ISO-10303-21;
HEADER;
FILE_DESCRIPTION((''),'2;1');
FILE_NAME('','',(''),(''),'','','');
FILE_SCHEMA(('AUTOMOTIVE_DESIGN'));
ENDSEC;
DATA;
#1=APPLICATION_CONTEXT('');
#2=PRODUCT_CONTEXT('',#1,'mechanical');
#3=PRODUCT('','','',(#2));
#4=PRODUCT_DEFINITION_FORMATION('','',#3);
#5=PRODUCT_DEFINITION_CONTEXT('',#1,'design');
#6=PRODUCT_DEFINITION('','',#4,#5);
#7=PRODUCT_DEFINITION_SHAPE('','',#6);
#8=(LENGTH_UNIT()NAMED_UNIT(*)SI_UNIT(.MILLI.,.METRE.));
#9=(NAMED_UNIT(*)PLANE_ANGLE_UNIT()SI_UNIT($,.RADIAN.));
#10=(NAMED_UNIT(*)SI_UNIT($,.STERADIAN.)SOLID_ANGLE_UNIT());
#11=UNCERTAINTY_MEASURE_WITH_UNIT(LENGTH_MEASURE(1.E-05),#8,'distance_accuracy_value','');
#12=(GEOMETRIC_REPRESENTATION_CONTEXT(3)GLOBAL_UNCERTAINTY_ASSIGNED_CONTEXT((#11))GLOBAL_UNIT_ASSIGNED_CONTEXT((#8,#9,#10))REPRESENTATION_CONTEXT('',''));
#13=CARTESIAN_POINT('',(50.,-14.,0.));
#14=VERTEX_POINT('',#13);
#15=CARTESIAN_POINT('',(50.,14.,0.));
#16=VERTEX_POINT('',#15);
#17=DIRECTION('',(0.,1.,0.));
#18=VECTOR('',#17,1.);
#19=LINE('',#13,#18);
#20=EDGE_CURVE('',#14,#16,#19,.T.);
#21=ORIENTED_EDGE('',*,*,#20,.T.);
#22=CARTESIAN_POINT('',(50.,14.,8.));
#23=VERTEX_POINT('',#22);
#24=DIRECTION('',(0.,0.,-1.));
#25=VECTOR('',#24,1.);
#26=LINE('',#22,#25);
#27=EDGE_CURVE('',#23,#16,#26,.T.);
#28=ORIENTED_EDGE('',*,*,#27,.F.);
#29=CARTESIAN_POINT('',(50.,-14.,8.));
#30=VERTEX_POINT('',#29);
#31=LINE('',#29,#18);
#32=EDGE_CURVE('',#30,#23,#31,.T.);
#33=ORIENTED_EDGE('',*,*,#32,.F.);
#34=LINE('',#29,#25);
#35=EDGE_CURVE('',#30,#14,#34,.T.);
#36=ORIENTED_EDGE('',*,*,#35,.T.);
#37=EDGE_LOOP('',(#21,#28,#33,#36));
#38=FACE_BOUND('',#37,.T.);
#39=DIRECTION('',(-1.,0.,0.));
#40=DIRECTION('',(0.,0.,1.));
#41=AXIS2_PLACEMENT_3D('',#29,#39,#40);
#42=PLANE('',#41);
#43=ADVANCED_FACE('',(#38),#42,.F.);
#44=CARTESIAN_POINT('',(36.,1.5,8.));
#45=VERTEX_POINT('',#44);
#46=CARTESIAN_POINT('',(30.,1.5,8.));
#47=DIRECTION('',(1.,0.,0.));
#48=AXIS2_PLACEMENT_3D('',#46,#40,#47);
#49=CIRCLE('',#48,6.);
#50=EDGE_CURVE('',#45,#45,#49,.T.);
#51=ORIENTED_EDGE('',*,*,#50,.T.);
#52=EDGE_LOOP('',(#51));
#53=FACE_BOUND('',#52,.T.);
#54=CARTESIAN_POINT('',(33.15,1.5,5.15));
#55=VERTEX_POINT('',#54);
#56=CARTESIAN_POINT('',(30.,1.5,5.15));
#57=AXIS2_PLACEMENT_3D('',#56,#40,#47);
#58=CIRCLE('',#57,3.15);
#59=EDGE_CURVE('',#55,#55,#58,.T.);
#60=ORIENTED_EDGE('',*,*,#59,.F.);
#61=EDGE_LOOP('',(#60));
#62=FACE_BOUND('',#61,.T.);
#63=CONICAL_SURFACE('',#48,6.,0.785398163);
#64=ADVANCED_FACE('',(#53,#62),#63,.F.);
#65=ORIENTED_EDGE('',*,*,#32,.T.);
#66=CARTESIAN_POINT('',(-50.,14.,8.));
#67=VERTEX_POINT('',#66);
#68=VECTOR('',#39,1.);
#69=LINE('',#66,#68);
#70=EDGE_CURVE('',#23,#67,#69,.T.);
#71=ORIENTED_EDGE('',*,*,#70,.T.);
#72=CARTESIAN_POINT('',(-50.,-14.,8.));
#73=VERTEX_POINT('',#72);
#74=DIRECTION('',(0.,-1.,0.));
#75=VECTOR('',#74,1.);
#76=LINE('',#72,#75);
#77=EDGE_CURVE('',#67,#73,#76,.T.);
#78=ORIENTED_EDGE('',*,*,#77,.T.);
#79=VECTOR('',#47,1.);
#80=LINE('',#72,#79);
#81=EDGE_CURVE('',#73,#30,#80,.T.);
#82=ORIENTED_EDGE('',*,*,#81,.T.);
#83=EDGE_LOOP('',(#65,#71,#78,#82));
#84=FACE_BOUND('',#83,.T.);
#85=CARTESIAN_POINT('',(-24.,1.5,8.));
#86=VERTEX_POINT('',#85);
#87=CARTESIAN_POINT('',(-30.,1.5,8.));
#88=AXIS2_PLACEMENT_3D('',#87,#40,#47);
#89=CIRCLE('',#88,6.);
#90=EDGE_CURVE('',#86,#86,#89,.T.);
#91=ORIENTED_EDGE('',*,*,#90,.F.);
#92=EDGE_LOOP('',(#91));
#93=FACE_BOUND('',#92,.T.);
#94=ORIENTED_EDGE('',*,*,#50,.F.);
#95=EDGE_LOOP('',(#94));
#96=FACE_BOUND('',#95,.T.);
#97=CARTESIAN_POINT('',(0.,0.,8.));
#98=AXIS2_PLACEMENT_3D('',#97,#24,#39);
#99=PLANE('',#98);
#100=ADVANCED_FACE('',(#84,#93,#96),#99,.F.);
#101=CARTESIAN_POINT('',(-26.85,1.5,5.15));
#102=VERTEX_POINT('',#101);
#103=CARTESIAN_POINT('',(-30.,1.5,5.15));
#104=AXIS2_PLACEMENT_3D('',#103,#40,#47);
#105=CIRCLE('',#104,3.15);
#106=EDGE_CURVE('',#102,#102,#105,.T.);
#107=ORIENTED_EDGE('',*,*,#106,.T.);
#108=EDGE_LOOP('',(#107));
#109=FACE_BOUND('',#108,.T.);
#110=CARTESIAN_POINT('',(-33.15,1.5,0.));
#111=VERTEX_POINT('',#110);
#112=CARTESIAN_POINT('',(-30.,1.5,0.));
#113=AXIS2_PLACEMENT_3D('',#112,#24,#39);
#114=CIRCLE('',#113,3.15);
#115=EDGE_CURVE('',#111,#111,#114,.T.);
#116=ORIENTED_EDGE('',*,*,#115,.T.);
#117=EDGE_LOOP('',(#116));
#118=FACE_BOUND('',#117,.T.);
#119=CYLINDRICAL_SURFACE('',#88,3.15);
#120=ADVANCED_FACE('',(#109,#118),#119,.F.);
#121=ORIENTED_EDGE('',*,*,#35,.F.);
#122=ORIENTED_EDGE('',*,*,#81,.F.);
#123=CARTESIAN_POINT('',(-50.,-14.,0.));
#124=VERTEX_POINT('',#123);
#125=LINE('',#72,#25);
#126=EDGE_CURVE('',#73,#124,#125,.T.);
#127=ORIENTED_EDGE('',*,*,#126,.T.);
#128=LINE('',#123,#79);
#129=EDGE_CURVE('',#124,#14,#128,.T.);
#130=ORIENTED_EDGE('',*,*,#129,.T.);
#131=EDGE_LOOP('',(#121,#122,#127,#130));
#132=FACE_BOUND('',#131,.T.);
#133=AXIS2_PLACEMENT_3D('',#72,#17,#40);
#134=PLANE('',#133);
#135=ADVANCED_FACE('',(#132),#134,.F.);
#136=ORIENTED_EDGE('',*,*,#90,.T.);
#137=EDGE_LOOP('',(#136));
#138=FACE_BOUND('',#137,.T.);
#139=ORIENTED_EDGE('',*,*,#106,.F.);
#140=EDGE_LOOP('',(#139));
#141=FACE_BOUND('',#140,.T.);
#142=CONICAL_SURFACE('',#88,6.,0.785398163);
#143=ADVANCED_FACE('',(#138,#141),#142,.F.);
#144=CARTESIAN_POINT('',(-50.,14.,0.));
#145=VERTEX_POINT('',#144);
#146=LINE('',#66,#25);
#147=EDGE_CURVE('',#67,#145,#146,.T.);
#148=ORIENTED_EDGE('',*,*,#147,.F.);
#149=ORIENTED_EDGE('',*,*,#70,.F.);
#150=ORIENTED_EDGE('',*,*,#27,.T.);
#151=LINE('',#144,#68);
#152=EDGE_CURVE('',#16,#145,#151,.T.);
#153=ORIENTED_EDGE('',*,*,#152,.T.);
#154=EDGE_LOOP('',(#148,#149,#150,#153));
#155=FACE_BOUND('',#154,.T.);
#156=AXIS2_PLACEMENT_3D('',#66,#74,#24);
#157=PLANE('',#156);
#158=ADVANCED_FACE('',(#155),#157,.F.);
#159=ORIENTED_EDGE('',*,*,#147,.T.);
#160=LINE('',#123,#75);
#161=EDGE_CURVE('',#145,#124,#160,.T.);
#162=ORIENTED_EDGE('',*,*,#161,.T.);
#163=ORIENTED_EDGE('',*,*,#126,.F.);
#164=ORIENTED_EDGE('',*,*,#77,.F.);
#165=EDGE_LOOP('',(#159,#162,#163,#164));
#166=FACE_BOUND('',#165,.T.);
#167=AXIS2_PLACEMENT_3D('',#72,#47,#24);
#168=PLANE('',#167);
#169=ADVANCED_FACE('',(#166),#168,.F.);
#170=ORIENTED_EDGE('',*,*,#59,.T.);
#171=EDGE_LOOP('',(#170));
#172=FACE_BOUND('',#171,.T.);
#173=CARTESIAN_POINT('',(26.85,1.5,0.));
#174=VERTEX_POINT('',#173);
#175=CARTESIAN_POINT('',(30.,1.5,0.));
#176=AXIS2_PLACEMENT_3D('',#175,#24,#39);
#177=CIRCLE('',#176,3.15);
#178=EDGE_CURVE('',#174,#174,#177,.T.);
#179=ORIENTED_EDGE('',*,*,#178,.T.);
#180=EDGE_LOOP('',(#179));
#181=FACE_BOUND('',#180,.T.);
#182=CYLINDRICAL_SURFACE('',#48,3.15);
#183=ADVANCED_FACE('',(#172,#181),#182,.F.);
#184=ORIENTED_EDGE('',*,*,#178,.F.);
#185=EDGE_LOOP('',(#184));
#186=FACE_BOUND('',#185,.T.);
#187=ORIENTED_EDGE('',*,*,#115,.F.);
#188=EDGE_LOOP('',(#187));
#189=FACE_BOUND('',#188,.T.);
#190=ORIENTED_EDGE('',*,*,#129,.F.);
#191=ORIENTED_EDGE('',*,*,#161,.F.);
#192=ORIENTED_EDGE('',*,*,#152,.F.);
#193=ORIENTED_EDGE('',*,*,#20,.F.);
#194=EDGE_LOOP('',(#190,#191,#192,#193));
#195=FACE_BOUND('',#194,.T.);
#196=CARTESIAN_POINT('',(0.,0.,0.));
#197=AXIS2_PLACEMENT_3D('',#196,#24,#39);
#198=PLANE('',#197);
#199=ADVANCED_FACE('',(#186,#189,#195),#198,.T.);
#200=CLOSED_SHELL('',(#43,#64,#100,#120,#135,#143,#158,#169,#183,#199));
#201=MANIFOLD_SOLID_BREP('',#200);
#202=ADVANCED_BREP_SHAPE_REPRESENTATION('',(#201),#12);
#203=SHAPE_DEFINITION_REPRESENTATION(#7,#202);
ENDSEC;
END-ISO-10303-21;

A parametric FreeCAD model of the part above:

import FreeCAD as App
import Part
import Sketcher
from FreeCAD import Vector


def add_polygon(sketch, points):
    """Adds a closed chain of lines whose ends are joined by coincident constraints."""
    first, n = sketch.GeometryCount, len(points)
    for a, b in zip(points, points[1:] + points[:1]):
        sketch.addGeometry(Part.LineSegment(App.Vector(*a, 0), App.Vector(*b, 0)), False)
    for i in range(n):
        sketch.addConstraint(Sketcher.Constraint("Coincident", first + i, 2, first + (i + 1) % n, 1))

doc = App.newDocument("Part")
body = doc.addObject("PartDesign::Body", "Body")

sketch1 = doc.addObject("Sketcher::SketchObject", "Sketch")
body.addObject(sketch1)
sketch1.AttachmentSupport = (doc.XY_Plane, [""])
sketch1.MapMode = "FlatFace"
add_polygon(sketch1, [(-50, 14), (-50, -14), (50, -14), (50, 14)])
sketch1.addConstraint(Sketcher.Constraint("Vertical", 0))
sketch1.addConstraint(Sketcher.Constraint("Horizontal", 1))
sketch1.addConstraint(Sketcher.Constraint("Vertical", 2))
sketch1.addConstraint(Sketcher.Constraint("Horizontal", 3))
sketch1.addConstraint(Sketcher.Constraint("Symmetric", 0, 2, 2, 2, -1, 1))
sketch1.addConstraint(Sketcher.Constraint("DistanceX", 1, 1, 1, 2, 100.0))
sketch1.addConstraint(Sketcher.Constraint("DistanceY", 0, 2, 0, 1, 28.0))
pad1 = doc.addObject("PartDesign::Pad", "Pad")
body.addObject(pad1)
pad1.Profile = sketch1
pad1.Length = 8

sketch2 = doc.addObject("Sketcher::SketchObject", "Sketch001")
body.addObject(sketch2)
sketch2.AttachmentSupport = (doc.XY_Plane, [""])
sketch2.MapMode = "FlatFace"
sketch2.AttachmentOffset = App.Placement(Vector(0, 0, 8), App.Rotation())
sketch2.addGeometry(Part.Circle(Vector(-30, 1.5, 0), Vector(0, 0, 1), 3.1), False)
sketch2.addGeometry(Part.Circle(Vector(30, 1.5, 0), Vector(0, 0, 1), 3.1), False)
sketch2.addConstraint(Sketcher.Constraint("Equal", 0, 1))
sketch2.addConstraint(Sketcher.Constraint("Symmetric", 0, 3, 1, 3, -2))
sketch2.addConstraint(Sketcher.Constraint("Diameter", 0, 6.3))
sketch2.addConstraint(Sketcher.Constraint("DistanceX", 0, 3, -1, 1, 30.0))
sketch2.addConstraint(Sketcher.Constraint("DistanceY", -1, 1, 0, 3, 1.5))
doc.recompute()
hole = doc.addObject("PartDesign::Hole", "Hole")
body.addObject(hole)
hole.Profile = sketch2
hole.ThreadType = "None"
hole.Diameter = 6.3
hole.DepthType = "Dimension"
hole.Depth = 50
hole.DrillPoint = "Flat"
hole.HoleCutType = "Countersink"
hole.HoleCutDiameter = 12
hole.HoleCutCountersinkAngle = 90

doc.recompute()
